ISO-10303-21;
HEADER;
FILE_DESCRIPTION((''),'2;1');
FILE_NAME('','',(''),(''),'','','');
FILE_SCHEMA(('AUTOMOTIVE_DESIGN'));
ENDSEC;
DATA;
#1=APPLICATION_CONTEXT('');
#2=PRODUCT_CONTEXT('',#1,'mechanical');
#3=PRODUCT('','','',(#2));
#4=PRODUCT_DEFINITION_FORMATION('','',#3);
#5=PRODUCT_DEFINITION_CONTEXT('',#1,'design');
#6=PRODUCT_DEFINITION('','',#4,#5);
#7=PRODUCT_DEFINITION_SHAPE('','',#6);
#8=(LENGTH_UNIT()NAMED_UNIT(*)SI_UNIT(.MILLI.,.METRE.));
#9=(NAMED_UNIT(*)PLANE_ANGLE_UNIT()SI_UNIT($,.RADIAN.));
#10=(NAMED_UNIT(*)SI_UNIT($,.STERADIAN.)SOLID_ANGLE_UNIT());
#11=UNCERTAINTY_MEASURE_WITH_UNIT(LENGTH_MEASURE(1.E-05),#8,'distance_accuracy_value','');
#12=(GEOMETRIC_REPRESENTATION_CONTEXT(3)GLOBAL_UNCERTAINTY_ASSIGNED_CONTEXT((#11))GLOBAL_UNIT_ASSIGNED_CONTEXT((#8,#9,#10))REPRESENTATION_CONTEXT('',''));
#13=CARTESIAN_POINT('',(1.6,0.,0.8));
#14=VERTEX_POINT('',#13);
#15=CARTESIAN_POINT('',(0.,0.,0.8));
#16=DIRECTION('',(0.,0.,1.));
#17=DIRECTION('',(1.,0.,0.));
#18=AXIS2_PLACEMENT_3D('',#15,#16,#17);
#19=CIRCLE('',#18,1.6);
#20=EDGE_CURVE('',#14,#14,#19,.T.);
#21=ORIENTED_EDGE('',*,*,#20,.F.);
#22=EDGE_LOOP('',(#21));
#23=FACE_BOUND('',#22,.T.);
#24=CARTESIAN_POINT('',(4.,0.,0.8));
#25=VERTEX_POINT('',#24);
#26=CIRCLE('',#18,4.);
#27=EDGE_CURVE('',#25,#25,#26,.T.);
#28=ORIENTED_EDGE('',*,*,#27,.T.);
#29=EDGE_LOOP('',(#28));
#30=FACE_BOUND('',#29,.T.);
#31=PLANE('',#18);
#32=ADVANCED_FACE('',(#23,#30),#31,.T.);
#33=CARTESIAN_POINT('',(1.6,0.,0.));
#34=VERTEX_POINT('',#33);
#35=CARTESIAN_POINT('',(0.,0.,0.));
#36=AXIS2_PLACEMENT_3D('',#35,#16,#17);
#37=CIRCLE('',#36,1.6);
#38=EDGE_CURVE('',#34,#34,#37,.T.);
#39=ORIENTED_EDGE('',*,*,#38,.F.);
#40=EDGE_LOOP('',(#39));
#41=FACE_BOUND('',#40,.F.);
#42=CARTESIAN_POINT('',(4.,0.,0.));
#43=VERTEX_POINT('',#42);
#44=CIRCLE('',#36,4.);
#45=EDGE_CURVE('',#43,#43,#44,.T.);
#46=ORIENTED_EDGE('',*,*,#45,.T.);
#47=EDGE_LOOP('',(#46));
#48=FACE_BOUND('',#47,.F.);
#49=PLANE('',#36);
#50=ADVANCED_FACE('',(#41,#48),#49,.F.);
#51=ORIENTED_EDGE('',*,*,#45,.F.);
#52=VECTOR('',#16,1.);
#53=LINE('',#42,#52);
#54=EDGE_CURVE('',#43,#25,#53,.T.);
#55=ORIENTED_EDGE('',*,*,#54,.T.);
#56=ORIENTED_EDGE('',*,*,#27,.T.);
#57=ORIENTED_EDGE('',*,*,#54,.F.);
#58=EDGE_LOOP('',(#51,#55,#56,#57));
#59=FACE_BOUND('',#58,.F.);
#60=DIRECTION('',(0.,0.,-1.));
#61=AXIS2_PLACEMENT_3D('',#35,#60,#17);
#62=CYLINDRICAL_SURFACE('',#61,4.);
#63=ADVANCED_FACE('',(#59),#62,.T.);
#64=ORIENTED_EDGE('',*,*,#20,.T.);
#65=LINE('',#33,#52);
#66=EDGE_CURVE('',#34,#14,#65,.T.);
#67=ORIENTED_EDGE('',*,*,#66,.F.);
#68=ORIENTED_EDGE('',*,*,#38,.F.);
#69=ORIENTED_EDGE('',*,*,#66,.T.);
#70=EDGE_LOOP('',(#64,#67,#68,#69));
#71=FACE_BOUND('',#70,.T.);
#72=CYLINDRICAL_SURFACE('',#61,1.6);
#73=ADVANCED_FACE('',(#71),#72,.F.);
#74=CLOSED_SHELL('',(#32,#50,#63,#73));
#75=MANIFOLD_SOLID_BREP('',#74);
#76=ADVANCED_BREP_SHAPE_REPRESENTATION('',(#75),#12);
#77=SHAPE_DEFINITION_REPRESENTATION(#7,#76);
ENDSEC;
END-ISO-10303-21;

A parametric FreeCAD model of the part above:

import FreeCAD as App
import Part
import Sketcher
from FreeCAD import Vector

doc = App.newDocument("Part")
body = doc.addObject("PartDesign::Body", "Body")

# Sketch on XY plane
sketch1 = body.newObject("Sketcher::SketchObject", "Sketch")
sketch1.AttachmentSupport = (doc.getObject("XY_Plane"), [""])
sketch1.MapMode = "FlatFace"
sketch1.addGeometry(Part.Circle(Vector(0, 0, 0), Vector(0, 0, 1), 4), False)
sketch1.addGeometry(Part.Circle(Vector(0, 0, 0), Vector(0, 0, 1), 1.6), False)
sketch1.addConstraint(Sketcher.Constraint("Coincident", 0, 3, -1, 1))
sketch1.addConstraint(Sketcher.Constraint("Coincident", 1, 3, -1, 1))
sketch1.addConstraint(Sketcher.Constraint("Diameter", 0, 8.0))
sketch1.addConstraint(Sketcher.Constraint("Diameter", 1, 3.2))
pad1 = body.newObject("PartDesign::Pad", "Pad")
pad1.Profile = sketch1
pad1.Length = 0.8

doc.recompute()
